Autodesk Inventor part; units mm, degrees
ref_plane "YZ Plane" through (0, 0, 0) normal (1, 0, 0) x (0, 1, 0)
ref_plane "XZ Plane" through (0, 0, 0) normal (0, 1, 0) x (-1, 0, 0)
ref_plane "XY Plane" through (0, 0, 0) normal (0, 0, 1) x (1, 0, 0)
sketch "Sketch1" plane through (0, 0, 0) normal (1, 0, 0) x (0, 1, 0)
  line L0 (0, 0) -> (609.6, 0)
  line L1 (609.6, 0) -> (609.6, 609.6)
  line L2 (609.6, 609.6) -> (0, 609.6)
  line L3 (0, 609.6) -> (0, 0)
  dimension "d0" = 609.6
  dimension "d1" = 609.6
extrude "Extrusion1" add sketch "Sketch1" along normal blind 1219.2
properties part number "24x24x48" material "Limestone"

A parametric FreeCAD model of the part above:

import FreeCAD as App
import Part
import Sketcher
from FreeCAD import Vector
Q = App.Units.Quantity

doc = App.newDocument("Part")
params = doc.addObject("Spreadsheet::Sheet", "Params")
for row, (alias, value) in enumerate([
    ("sketch1_width", "24 in"),
    ("pad1_length", "48 in"),
], start=1):
    params.set(f"A{row}", alias)
    params.set(f"B{row}", "=" + value)
    params.setAlias(f"B{row}", alias)

body = doc.addObject("PartDesign::Body", "Body")

sketch1 = body.newObject("Sketcher::SketchObject", "Sketch")
sketch1.AttachmentSupport = (doc.getObject("YZ_Plane"), [""])
sketch1.MapMode = "FlatFace"
sketch1.addGeometry([
    Part.LineSegment(Vector(0, 609.6, 0), Vector(0, 0, 0)),
    Part.LineSegment(Vector(0, 0, 0), Vector(609.6, 0, 0)),
    Part.LineSegment(Vector(609.6, 0, 0), Vector(609.6, 609.6, 0)),
    Part.LineSegment(Vector(609.6, 609.6, 0), Vector(0, 609.6, 0)),
], False)
sketch1.addConstraint([
    Sketcher.Constraint("Coincident", 0, 2, 1, 1),
    Sketcher.Constraint("Coincident", 1, 2, 2, 1),
    Sketcher.Constraint("Coincident", 2, 2, 3, 1),
    Sketcher.Constraint("Coincident", 3, 2, 0, 1),
    Sketcher.Constraint("Vertical", 0),
    Sketcher.Constraint("Horizontal", 1),
    Sketcher.Constraint("Vertical", 2),
    Sketcher.Constraint("Horizontal", 3),
    Sketcher.Constraint("Coincident", 0, 2, -1, 1),
    Sketcher.Constraint("Equal", 3, 0),
    Sketcher.Constraint("DistanceX", 1, 1, 1, 2, Q("24 in")),
])
sketch1.setExpression("Constraints[10]", "Params.sketch1_width")
pad1 = body.newObject("PartDesign::Pad", "Pad")
pad1.Profile = sketch1
pad1.setExpression("Length", "Params.pad1_length")

doc.recompute()
